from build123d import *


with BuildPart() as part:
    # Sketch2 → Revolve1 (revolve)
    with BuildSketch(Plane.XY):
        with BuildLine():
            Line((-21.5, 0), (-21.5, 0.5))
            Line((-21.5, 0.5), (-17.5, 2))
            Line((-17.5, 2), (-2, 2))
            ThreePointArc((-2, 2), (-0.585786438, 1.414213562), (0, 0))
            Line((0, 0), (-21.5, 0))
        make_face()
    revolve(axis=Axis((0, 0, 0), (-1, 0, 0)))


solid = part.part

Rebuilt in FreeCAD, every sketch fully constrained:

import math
import FreeCAD as App
import Part
import Sketcher
from FreeCAD import Vector
Q = App.Units.Quantity

doc = App.newDocument("Part")
body = doc.addObject("PartDesign::Body", "Body")

# Sketch on XY plane
sketch1 = body.newObject("Sketcher::SketchObject", "Sketch")
sketch1.AttachmentSupport = (doc.getObject("XY_Plane"), [""])
sketch1.MapMode = "FlatFace"
sketch1.addGeometry([
    Part.LineSegment(Vector(-21.5, 0.5, 0), Vector(-21.5, 0, 0)),  # 0
    Part.LineSegment(Vector(-21.5, 0, 0), Vector(0, 0, 0)),  # 1
    Part.ArcOfCircle(Part.Circle(Vector(-2, 0, 0), Vector(0, 0, 1), 2), math.radians(0), math.radians(90)),  # 2
    Part.LineSegment(Vector(-2, 2, 0), Vector(-17.5, 2, 0)),  # 3
    Part.LineSegment(Vector(-17.5, 2, 0), Vector(-21.5, 0.5, 0)),  # 4
], False)
sketch1.addConstraint([
    Sketcher.Constraint("Coincident", 0, 2, 1, 1),
    Sketcher.Constraint("Coincident", 1, 2, 2, 1),
    Sketcher.Constraint("Tangent", 2, 2, 3, 1),
    Sketcher.Constraint("Coincident", 3, 2, 4, 1),
    Sketcher.Constraint("Coincident", 4, 2, 0, 1),
    Sketcher.Constraint("Vertical", 0),
    Sketcher.Constraint("Horizontal", 1),
    Sketcher.Constraint("Horizontal", 3),
    Sketcher.Constraint("Coincident", 1, 2, -1, 1),
    Sketcher.Constraint("PointOnObject", 2, 3, -1),
    Sketcher.Constraint("Radius", 2, Q("2 mm")),
    Sketcher.Constraint("DistanceX", 1, 1, 1, 2, Q("21.5 mm")),
    Sketcher.Constraint("DistanceX", 3, 2, 3, 1, Q("15.5 mm")),
    Sketcher.Constraint("DistanceY", 0, 2, 0, 1, Q("0.5 mm")),
])
revolution = body.newObject("PartDesign::Revolution", "Revolution")
revolution.Profile = sketch1
revolution.ReferenceAxis = (sketch1, ["H_Axis"])
revolution.Angle = 360

doc.recompute()
